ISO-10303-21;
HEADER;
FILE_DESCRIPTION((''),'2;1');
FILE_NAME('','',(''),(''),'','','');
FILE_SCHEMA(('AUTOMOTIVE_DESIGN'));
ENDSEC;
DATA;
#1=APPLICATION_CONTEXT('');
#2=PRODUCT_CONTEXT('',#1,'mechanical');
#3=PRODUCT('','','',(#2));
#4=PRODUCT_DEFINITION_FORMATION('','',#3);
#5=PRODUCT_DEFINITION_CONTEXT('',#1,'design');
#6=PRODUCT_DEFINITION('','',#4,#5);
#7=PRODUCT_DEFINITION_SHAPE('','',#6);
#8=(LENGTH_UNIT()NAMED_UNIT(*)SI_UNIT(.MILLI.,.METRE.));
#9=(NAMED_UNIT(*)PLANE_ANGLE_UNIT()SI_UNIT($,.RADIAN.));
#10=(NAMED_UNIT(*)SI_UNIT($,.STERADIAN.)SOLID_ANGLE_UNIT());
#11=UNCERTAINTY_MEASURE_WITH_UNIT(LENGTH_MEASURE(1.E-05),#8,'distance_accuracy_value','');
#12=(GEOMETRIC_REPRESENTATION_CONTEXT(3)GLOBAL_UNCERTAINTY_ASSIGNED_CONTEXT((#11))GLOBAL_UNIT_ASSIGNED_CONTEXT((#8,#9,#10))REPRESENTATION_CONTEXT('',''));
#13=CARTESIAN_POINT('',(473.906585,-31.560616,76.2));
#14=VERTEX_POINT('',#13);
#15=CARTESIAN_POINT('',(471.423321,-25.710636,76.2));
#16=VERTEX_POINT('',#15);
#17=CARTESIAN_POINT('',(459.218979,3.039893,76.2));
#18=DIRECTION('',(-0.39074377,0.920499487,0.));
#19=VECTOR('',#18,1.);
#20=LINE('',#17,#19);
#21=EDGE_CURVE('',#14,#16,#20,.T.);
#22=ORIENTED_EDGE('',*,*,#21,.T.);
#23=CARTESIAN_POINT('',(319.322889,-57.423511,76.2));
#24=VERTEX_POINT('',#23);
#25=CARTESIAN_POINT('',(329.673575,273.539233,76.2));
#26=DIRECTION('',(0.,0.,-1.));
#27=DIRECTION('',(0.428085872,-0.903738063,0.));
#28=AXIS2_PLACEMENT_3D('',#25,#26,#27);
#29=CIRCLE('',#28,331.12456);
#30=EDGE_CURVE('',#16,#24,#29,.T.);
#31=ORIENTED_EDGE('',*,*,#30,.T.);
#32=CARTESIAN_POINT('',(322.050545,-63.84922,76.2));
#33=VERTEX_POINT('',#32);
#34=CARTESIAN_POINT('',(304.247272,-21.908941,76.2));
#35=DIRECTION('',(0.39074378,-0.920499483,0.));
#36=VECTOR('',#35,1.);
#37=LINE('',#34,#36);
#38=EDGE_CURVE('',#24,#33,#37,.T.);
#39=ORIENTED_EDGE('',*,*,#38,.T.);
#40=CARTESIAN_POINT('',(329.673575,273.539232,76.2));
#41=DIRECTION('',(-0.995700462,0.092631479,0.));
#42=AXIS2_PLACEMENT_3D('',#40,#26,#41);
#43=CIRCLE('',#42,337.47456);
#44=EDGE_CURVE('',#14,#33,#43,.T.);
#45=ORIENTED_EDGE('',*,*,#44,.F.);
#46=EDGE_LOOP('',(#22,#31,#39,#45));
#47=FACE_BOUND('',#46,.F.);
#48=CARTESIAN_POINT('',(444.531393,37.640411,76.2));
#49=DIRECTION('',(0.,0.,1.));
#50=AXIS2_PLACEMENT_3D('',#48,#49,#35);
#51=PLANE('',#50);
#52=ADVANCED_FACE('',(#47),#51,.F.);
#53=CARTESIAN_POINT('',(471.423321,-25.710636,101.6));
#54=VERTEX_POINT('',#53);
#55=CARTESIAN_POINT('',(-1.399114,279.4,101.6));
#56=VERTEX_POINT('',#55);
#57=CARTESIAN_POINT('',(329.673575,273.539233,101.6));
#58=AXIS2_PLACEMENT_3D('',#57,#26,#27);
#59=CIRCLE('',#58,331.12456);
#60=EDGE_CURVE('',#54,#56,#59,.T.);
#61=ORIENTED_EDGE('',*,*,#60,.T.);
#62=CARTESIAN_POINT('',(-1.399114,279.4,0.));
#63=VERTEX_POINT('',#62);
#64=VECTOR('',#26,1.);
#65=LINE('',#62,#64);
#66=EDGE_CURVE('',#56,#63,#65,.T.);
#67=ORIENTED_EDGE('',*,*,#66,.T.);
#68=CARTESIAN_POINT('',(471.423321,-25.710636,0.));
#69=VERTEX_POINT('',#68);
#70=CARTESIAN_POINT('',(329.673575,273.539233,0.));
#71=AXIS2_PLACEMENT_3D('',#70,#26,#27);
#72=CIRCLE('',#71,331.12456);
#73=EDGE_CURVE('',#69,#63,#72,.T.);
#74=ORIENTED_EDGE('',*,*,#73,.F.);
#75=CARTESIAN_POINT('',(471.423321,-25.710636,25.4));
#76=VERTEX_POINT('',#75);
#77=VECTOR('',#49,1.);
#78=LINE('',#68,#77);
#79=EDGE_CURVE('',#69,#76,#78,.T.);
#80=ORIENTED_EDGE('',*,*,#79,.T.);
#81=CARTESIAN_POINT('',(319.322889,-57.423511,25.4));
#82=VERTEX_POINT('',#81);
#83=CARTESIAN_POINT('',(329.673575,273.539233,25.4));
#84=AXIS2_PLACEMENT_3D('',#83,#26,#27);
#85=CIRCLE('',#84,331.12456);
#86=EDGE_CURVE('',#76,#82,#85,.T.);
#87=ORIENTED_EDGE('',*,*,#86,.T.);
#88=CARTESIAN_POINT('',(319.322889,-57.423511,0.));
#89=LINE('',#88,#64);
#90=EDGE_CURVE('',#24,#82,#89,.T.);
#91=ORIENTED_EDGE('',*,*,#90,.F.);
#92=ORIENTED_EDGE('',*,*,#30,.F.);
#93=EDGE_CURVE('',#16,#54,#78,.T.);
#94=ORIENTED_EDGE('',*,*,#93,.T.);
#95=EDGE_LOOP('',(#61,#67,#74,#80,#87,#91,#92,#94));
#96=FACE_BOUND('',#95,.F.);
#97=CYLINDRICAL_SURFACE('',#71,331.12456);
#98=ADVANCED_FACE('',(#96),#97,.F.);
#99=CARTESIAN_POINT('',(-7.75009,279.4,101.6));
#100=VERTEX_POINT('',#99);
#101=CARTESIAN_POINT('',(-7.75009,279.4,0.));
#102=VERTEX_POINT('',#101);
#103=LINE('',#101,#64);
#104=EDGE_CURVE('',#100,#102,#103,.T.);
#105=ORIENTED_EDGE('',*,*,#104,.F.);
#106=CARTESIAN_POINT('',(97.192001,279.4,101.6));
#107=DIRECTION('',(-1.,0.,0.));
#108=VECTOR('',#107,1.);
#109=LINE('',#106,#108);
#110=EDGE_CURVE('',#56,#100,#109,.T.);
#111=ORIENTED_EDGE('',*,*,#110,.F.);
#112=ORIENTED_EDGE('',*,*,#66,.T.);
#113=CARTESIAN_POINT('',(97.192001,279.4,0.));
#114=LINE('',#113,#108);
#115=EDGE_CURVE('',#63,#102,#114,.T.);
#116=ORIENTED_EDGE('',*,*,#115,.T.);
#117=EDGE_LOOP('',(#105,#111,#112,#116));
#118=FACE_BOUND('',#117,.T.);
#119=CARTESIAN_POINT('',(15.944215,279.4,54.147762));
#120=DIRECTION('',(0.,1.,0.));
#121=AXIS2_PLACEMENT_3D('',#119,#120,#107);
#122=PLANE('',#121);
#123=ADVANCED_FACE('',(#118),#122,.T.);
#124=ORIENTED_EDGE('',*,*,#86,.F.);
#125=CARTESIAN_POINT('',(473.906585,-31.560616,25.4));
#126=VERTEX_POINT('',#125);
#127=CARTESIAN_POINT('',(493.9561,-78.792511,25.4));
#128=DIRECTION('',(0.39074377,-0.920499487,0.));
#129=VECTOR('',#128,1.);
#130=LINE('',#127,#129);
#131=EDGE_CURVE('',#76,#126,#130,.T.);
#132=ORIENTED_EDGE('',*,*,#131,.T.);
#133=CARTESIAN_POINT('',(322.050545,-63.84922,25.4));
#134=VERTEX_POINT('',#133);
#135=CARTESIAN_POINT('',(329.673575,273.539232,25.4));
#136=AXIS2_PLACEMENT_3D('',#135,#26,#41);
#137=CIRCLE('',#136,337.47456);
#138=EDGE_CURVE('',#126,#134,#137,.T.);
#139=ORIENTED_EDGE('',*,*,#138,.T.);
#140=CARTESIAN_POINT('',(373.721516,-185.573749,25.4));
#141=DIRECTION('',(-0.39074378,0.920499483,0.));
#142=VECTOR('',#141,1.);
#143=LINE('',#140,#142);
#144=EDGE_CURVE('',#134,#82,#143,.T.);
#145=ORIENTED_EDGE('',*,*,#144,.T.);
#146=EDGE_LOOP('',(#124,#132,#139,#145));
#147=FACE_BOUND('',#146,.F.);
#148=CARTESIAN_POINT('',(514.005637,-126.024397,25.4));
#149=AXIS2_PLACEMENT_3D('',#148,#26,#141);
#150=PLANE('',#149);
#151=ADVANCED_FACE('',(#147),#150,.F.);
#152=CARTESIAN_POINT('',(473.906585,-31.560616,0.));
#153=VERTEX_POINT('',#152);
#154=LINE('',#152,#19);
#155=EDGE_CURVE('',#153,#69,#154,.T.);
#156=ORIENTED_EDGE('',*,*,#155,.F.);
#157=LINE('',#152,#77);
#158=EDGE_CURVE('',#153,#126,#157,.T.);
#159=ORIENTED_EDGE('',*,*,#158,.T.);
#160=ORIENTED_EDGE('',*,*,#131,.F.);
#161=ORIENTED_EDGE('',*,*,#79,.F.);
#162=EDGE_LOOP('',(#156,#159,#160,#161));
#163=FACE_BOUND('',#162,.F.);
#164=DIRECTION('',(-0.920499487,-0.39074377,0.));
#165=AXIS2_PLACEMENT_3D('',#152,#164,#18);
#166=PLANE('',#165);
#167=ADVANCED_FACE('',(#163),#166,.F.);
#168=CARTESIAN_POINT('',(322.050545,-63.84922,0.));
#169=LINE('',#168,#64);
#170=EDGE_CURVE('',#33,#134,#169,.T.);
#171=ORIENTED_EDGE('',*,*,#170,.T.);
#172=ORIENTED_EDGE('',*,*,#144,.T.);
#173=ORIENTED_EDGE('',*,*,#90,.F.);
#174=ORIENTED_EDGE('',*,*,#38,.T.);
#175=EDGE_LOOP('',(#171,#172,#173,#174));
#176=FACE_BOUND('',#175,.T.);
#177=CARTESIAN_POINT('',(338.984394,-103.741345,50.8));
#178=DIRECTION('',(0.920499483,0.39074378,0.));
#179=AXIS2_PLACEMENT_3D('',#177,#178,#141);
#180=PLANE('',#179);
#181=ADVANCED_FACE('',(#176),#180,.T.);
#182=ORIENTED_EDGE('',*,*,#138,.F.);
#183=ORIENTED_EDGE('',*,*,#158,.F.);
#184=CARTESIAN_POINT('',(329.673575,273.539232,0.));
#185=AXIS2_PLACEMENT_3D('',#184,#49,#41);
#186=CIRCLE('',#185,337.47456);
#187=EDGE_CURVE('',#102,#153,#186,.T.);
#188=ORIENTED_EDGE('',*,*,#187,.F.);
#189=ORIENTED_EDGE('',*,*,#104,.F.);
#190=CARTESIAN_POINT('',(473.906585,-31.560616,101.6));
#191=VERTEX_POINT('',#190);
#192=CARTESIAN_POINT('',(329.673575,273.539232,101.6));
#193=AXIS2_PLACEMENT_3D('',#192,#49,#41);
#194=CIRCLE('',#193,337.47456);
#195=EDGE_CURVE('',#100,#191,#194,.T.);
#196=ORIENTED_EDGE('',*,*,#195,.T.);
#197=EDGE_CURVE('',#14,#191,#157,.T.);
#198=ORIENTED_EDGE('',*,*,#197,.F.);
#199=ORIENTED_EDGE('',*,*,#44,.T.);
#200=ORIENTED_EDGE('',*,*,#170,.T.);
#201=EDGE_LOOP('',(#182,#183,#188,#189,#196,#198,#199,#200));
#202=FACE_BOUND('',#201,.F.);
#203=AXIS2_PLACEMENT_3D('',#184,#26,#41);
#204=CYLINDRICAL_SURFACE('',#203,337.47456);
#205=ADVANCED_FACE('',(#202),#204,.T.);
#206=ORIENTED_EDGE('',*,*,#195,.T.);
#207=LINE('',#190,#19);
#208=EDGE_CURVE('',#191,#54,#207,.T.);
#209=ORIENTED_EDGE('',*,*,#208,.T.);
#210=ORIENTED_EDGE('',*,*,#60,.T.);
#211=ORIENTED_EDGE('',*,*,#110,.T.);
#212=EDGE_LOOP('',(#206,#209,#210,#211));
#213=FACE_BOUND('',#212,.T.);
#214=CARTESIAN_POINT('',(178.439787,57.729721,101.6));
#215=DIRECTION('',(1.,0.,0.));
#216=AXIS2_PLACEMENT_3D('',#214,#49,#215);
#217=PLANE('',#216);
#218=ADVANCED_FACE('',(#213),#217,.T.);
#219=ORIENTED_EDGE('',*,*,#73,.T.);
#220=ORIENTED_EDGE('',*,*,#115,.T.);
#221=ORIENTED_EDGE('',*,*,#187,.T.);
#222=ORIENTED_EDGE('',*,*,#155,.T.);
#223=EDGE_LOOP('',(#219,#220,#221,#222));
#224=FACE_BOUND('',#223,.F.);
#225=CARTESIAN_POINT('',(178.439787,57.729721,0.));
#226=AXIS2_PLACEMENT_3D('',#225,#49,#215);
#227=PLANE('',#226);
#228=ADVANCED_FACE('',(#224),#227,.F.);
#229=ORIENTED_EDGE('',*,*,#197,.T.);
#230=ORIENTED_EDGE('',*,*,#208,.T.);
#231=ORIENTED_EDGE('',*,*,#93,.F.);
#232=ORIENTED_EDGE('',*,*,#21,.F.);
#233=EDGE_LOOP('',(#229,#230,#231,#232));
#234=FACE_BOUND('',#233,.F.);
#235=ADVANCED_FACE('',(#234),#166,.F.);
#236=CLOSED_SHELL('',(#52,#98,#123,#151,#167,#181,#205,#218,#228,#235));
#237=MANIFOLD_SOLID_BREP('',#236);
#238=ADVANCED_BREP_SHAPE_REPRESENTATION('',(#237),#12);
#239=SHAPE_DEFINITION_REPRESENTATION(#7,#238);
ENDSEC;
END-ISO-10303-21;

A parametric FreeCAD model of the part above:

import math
import FreeCAD as App
import Part
import Sketcher
from FreeCAD import Vector
Q = App.Units.Quantity


def add_polygon(sketch, points):
    """Adds a closed chain of lines whose ends are joined by coincident constraints."""
    first, n = sketch.GeometryCount, len(points)
    for a, b in zip(points, points[1:] + points[:1]):
        sketch.addGeometry(Part.LineSegment(App.Vector(*a, 0), App.Vector(*b, 0)), False)
    for i in range(n):
        sketch.addConstraint(Sketcher.Constraint("Coincident", first + i, 2, first + (i + 1) % n, 1))

doc = App.newDocument("Part")
body = doc.addObject("PartDesign::Body", "Body")

# Sketch on XY plane
sketch1 = doc.addObject("Sketcher::SketchObject", "Sketch")
body.addObject(sketch1)
sketch1.AttachmentSupport = (doc.XY_Plane, [""])
sketch1.MapMode = "FlatFace"
sketch1.addGeometry(Part.ArcOfCircle(Part.Circle(Vector(330, 274, 0), Vector(0, 0, 1), 331), math.radians(175), math.radians(295)), False)
sketch1.addGeometry(Part.LineSegment(Vector(0, 305, 0), Vector(-6, 305, 0)), False)
sketch1.addGeometry(Part.ArcOfCircle(Part.Circle(Vector(330, 274, 0), Vector(0, 0, 1), 337), math.radians(175), math.radians(295)), False)
sketch1.addGeometry(Part.LineSegment(Vector(474, -32, 0), Vector(471, -26, 0)), False)
sketch1.addConstraint(Sketcher.Constraint("Coincident", 0, 1, 1, 1))
sketch1.addConstraint(Sketcher.Constraint("Coincident", 1, 2, 2, 1))
sketch1.addConstraint(Sketcher.Constraint("Coincident", 2, 2, 3, 1))
sketch1.addConstraint(Sketcher.Constraint("Coincident", 3, 2, 0, 2))
sketch1.addConstraint(Sketcher.Constraint("Horizontal", 1))
sketch1.addConstraint(Sketcher.Constraint("Coincident", 2, 3, 0, 3))
sketch1.addConstraint(Sketcher.Constraint("DistanceY", -1, 1, 0, 1, Q("12 in")))
sketch1.addConstraint(Sketcher.Constraint("Radius", 0, Q("13.0364 in")))
sketch1.addConstraint(Sketcher.Constraint("Radius", 2, Q("13.2864 in")))
sketch1.addConstraint(Sketcher.Constraint("DistanceX", 1, 2, -1, 1, Q("0.25 in")))
sketch1.addConstraint(Sketcher.Constraint("DistanceX", -1, 1, 3, 2, 471.423321))
sketch1.addConstraint(Sketcher.Constraint("DistanceX", 2, 3, 2, 2, 144.23301))
sketch1.addConstraint(Sketcher.Constraint("DistanceY", 3, 2, 2, 3, 299.249868))
pad1 = doc.addObject("PartDesign::Pad", "Pad")
body.addObject(pad1)
pad1.Profile = sketch1
pad1.Length = Q("4 in")

# Sketch on an angled plane
sketch2 = doc.addObject("Sketcher::SketchObject", "Sketch001")
body.addObject(sketch2)
sketch2.Placement = App.Placement(Vector(390.198528, 165.635729, 0), App.Rotation(Vector(-0.39074378, 0.920499483, 0), Vector(0, 0, 1), Vector(0.920499483, 0.39074378, 0), "ZXY"))
add_polygon(sketch2, [(-139, 76), (-317, 76), (-317, 25), (-139, 25)])  # lines 0-3
sketch2.addConstraint(Sketcher.Constraint("Horizontal", 0))
sketch2.addConstraint(Sketcher.Constraint("Vertical", 1))
sketch2.addConstraint(Sketcher.Constraint("Horizontal", 2))
sketch2.addConstraint(Sketcher.Constraint("Vertical", 3))
sketch2.addConstraint(Sketcher.Constraint("DistanceX", 0, 2, 0, 1, Q("7 in")))
sketch2.addConstraint(Sketcher.Constraint("DistanceY", 1, 2, 1, 1, Q("2 in")))
sketch2.addConstraint(Sketcher.Constraint("DistanceY", -1, 1, 0, 2, Q("3 in")))
sketch2.addConstraint(Sketcher.Constraint("DistanceX", 0, 2, -1, 1, 316.849853))
pocket1 = doc.addObject("PartDesign::Pocket", "Pocket")
body.addObject(pocket1)
pocket1.Profile = sketch2
pocket1.Length = Q("6 in")

# Sketch on XZ plane
sketch3 = doc.addObject("Sketcher::SketchObject", "Sketch002")
body.addObject(sketch3)
sketch3.AttachmentSupport = (doc.XZ_Plane, [""])
sketch3.MapMode = "FlatFace"
sketch3.AttachmentOffset = App.Placement(Vector(0, 0, -12 * 25.4), App.Rotation())
add_polygon(sketch3, [(88, 113), (88, -5), (-56, -5), (-56, 113)])  # lines 0-3
sketch3.addConstraint(Sketcher.Constraint("Vertical", 0))
sketch3.addConstraint(Sketcher.Constraint("Horizontal", 1))
sketch3.addConstraint(Sketcher.Constraint("Vertical", 2))
sketch3.addConstraint(Sketcher.Constraint("Horizontal", 3))
sketch3.addConstraint(Sketcher.Constraint("DistanceX", 1, 2, 1, 1, 143.211212))
sketch3.addConstraint(Sketcher.Constraint("DistanceY", 0, 2, 0, 1, 118.549919))
sketch3.addConstraint(Sketcher.Constraint("DistanceX", -1, 1, 0, 2, 87.549821))
sketch3.addConstraint(Sketcher.Constraint("DistanceY", -1, 1, 2, 2, 113.422721))
pocket2 = doc.addObject("PartDesign::Pocket", "Pocket001")
body.addObject(pocket2)
pocket2.Profile = sketch3
pocket2.Length = Q("1 in")
pocket2.Reversed = True

doc.recompute()
